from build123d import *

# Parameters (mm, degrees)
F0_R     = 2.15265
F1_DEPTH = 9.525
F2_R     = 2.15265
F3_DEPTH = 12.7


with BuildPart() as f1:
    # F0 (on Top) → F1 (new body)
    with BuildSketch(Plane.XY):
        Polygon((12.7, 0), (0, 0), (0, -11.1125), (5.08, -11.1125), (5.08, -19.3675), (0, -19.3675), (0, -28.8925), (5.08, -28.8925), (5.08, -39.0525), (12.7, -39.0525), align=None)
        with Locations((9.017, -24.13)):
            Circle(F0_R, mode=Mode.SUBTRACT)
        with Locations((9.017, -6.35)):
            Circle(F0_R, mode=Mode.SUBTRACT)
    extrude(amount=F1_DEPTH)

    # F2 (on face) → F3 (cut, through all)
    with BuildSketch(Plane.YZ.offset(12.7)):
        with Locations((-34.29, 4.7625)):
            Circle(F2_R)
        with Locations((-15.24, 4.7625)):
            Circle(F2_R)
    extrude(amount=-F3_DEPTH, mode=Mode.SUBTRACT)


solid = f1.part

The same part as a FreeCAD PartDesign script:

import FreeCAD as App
import Part
import Sketcher

V = App.Vector
Q = App.Units.Quantity

doc = App.newDocument("Part")
body = doc.addObject("PartDesign::Body", "Body")

# Sketch on XY plane
sketch1 = body.newObject("Sketcher::SketchObject", "Sketch")
sketch1.AttachmentSupport = (doc.getObject("XY_Plane"), [""])
sketch1.MapMode = "FlatFace"
sketch1.addGeometry([
    Part.LineSegment(V(12.7, 0, 0), V(0, 0, 0)),  # 0
    Part.LineSegment(V(0, 0, 0), V(0, -11.1, 0)),  # 1
    Part.LineSegment(V(0, -11.1, 0), V(5.1, -11.1, 0)),  # 2
    Part.LineSegment(V(5.1, -11.1, 0), V(5.1, -19.4, 0)),  # 3
    Part.LineSegment(V(5.1, -19.4, 0), V(0, -19.4, 0)),  # 4
    Part.LineSegment(V(0, -19.4, 0), V(0, -28.9, 0)),  # 5
    Part.LineSegment(V(0, -28.9, 0), V(5.1, -28.9, 0)),  # 6
    Part.LineSegment(V(5.1, -28.9, 0), V(5.1, -39.1, 0)),  # 7
    Part.LineSegment(V(5.1, -39.1, 0), V(12.7, -39.1, 0)),  # 8
    Part.LineSegment(V(12.7, -39.1, 0), V(12.7, 0, 0)),  # 9
    Part.Circle(V(9, -24.1, 0), V(0, 0, 1), 2.2),  # 10
    Part.Circle(V(9, -6.3, 0), V(0, 0, 1), 2.2),  # 11
], False)
sketch1.addConstraint([
    Sketcher.Constraint("Coincident", 0, 2, 1, 1),
    Sketcher.Constraint("Coincident", 1, 2, 2, 1),
    Sketcher.Constraint("Coincident", 2, 2, 3, 1),
    Sketcher.Constraint("Coincident", 3, 2, 4, 1),
    Sketcher.Constraint("Coincident", 4, 2, 5, 1),
    Sketcher.Constraint("Coincident", 5, 2, 6, 1),
    Sketcher.Constraint("Coincident", 6, 2, 7, 1),
    Sketcher.Constraint("Coincident", 7, 2, 8, 1),
    Sketcher.Constraint("Coincident", 8, 2, 9, 1),
    Sketcher.Constraint("Coincident", 9, 2, 0, 1),
    Sketcher.Constraint("Horizontal", 0),
    Sketcher.Constraint("Vertical", 1),
    Sketcher.Constraint("Horizontal", 2),
    Sketcher.Constraint("Vertical", 3),
    Sketcher.Constraint("Horizontal", 4),
    Sketcher.Constraint("Vertical", 5),
    Sketcher.Constraint("Horizontal", 6),
    Sketcher.Constraint("Vertical", 7),
    Sketcher.Constraint("Horizontal", 8),
    Sketcher.Constraint("Vertical", 9),
    Sketcher.Constraint("Coincident", 0, 2, -1, 1),
    Sketcher.Constraint("Equal", 10, 11),
    Sketcher.Constraint("PointOnObject", 4, 2, -2),
    Sketcher.Constraint("Vertical", 10, 3, 11, 3),
    Sketcher.Constraint("Vertical", 3, 2, 6, 2),
    Sketcher.Constraint("DistanceX", 0, 2, 0, 1, Q("0.5 in")),
    Sketcher.Constraint("DistanceX", 2, 1, 2, 2, Q("0.2 in")),
    Sketcher.Constraint("DistanceY", 7, 2, 7, 1, Q("0.4 in")),
    Sketcher.Constraint("Diameter", 10, Q("0.1695 in")),
    Sketcher.Constraint("DistanceY", 10, 3, 11, 3, Q("0.7 in")),
    Sketcher.Constraint("DistanceY", 5, 2, 1, 2, Q("0.7 in")),
    Sketcher.Constraint("DistanceY", 1, 2, 1, 1, Q("0.4375 in")),
    Sketcher.Constraint("DistanceY", 3, 2, 3, 1, Q("0.325 in")),
    Sketcher.Constraint("DistanceY", 10, 3, -1, 1, Q("0.95 in")),
    Sketcher.Constraint("DistanceX", -1, 1, 10, 3, Q("0.355 in")),
])
pad1 = body.newObject("PartDesign::Pad", "Pad")
pad1.Profile = sketch1
pad1.Length = Q("0.375 in")

# Sketch on YZ plane
sketch2 = body.newObject("Sketcher::SketchObject", "Sketch001")
sketch2.AttachmentSupport = (doc.getObject("YZ_Plane"), [""])
sketch2.MapMode = "FlatFace"
sketch2.AttachmentOffset = App.Placement(V(0, 0, 0.5 * 25.4), App.Rotation())
sketch2.addGeometry([
    Part.Circle(V(-34.3, 4.8, 0), V(0, 0, 1), 2.2),
    Part.Circle(V(-15.2, 4.8, 0), V(0, 0, 1), 2.2),
], False)
sketch2.addConstraint([
    Sketcher.Constraint("Equal", 0, 1),
    Sketcher.Constraint("Horizontal", 0, 3, 1, 3),
    Sketcher.Constraint("Diameter", 0, Q("0.1695 in")),
    Sketcher.Constraint("DistanceX", 1, 3, -1, 1, Q("0.6 in")),
    Sketcher.Constraint("DistanceX", 0, 3, -1, 1, Q("1.35 in")),
    Sketcher.Constraint("DistanceY", -1, 1, 0, 3, Q("0.1875 in")),
])
pocket1 = body.newObject("PartDesign::Pocket", "Pocket")
pocket1.Profile = sketch2
pocket1.Type = "ThroughAll"

doc.recompute()
